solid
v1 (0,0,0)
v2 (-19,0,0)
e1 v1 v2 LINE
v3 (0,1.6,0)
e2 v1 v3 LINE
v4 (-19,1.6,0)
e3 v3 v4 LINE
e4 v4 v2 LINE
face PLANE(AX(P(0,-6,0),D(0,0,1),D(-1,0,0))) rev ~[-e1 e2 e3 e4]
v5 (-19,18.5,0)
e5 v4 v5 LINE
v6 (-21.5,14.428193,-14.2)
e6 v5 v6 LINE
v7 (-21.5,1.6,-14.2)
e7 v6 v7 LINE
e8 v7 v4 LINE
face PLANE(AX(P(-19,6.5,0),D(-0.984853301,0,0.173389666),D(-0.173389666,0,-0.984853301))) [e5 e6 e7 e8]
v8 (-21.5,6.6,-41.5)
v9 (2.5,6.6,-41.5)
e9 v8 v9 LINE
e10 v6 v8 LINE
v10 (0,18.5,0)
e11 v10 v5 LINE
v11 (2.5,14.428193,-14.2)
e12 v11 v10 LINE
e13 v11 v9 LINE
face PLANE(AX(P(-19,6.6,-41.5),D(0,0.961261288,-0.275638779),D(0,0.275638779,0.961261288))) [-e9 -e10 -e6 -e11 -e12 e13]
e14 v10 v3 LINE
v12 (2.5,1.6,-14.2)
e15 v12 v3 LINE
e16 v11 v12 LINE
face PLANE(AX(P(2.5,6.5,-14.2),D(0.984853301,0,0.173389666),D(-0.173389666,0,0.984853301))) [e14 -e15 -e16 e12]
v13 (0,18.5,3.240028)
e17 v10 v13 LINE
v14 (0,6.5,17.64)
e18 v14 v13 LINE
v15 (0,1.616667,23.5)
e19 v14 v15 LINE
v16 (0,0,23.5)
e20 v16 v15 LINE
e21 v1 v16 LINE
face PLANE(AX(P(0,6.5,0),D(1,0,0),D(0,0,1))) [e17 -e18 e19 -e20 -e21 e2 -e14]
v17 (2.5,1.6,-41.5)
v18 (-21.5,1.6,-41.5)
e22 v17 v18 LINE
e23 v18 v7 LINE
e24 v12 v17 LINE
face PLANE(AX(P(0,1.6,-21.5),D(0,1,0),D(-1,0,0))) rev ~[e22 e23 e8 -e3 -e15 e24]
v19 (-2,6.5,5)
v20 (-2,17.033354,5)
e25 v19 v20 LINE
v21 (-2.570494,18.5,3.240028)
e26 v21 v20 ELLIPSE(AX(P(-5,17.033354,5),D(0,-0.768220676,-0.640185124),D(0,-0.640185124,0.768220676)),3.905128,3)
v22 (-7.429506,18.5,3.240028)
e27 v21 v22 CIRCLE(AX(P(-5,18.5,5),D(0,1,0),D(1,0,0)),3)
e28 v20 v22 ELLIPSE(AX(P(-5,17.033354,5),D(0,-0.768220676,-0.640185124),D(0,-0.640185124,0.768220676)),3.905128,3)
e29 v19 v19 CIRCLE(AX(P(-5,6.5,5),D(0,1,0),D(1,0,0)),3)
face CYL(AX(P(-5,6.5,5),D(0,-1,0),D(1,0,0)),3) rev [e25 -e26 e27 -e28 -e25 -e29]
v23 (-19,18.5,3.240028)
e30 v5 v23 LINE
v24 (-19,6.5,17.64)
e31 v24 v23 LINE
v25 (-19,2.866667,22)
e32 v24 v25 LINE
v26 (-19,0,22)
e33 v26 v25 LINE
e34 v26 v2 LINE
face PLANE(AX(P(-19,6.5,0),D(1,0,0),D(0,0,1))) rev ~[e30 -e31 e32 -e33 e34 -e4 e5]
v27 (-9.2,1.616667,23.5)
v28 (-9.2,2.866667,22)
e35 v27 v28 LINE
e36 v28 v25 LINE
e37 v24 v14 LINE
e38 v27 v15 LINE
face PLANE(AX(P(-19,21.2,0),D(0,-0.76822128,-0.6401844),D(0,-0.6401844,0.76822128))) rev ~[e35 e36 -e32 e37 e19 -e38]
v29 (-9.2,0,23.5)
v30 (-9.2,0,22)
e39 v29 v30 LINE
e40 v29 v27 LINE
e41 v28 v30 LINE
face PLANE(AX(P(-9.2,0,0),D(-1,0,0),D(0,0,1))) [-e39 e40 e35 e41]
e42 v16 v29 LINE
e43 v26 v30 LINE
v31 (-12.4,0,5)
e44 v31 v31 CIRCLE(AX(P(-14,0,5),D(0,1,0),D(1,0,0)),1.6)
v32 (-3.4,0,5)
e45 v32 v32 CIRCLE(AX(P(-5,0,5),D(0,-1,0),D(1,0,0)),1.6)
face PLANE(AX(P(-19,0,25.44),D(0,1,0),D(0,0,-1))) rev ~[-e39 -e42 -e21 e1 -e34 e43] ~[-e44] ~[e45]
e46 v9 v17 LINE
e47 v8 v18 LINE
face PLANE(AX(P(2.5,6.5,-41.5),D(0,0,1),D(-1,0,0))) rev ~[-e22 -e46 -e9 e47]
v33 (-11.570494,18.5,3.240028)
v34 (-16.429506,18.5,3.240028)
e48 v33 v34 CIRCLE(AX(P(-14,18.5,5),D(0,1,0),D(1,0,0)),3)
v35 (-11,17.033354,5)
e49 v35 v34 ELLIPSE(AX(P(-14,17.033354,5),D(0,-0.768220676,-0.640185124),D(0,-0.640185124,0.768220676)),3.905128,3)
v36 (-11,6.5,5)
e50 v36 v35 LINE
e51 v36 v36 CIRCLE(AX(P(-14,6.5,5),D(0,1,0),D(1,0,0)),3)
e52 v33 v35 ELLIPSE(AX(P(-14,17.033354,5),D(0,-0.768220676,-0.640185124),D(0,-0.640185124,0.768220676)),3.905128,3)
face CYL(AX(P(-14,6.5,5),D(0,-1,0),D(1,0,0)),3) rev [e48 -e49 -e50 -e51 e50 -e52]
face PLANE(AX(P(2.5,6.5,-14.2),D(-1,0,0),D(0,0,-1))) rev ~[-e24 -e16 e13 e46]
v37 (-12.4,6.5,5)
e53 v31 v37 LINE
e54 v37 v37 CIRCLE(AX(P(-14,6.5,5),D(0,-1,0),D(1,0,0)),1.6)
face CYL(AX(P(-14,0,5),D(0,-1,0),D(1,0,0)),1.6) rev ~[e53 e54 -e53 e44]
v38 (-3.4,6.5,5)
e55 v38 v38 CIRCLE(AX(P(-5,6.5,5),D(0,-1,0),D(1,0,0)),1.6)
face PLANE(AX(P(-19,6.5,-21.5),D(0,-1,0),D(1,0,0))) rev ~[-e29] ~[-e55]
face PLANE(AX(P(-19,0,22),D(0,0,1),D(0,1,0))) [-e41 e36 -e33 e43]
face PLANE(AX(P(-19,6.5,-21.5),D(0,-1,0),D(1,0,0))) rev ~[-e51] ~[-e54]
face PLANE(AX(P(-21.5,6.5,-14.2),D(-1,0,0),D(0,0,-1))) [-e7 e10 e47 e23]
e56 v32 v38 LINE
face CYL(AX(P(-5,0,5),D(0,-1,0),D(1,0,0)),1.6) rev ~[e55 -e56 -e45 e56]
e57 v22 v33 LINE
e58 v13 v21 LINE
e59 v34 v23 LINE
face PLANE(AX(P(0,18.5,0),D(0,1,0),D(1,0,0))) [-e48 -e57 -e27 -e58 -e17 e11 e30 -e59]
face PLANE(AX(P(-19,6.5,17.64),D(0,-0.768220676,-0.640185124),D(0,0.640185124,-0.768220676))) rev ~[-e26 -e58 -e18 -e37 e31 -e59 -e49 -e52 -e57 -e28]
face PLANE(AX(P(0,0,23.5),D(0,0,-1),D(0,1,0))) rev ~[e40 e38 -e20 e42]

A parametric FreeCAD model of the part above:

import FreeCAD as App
import Part
import Sketcher
from FreeCAD import Vector
Q = App.Units.Quantity


def edges_at(feature, points):
    """Names of the edges that pass closest to the given points."""
    edges = feature.Shape.Edges
    near = lambda p: min(range(len(edges)), key=lambda i: edges[i].distToShape(Part.Vertex(*p))[0])
    return sorted({f"Edge{near(p) + 1}" for p in points})


def add_polygon(sketch, points):
    """Adds a closed chain of lines whose ends are joined by coincident constraints."""
    first, n = sketch.GeometryCount, len(points)
    for a, b in zip(points, points[1:] + points[:1]):
        sketch.addGeometry(Part.LineSegment(App.Vector(*a, 0), App.Vector(*b, 0)), False)
    for i in range(n):
        sketch.addConstraint(Sketcher.Constraint("Coincident", first + i, 2, first + (i + 1) % n, 1))

doc = App.newDocument("Part")
params = doc.addObject("Spreadsheet::Sheet", "Params")
for row, (alias, value) in enumerate([
    ("sketch1_diameter", "3.4 mm"),
    ("sketch1_width", "19 mm"),
    ("sketch1_height", "22 mm"),
    ("pad1_length", "17.2 mm"),
    ("sketch2_height", "60 mm"),
    ("sketch2_width", "23.2 mm"),
    ("pad2_length", "19 mm"),
    ("sketch3_height", "38.5 mm"),
    ("sketch3_width", "19 mm"),
    ("pocket1_length", "18.2 mm"),
    ("sketch4_height", "22 mm"),
    ("sketch4_width", "19 mm"),
    ("pocket2_length", "10 mm"),
    ("sketch5_height", "21.5 mm"),
    ("sketch5_width", "6.4 mm"),
    ("pad3_length", "23.2 mm"),
    ("sketch6_width", "6.4 mm"),
    ("sketch6_height", "38.5 mm"),
    ("pad4_length", "5 mm"),
    ("chamfer_size", "12 mm"),
    ("sketch7_diameter", "3.4 mm"),
    ("pocket3_length", "10 mm"),
    ("sketch8_diameter", "6.5 mm"),
    ("sketch8_diameter2", "3.4 mm"),
    ("pocket4_length", "3 mm"),
    ("sketch9_height", "1.5 mm"),
    ("pad5_length", "9.2 mm"),
    ("sketch10_height", "25.44 mm"),
    ("sketch10_width", "17.2 mm"),
    ("pad6_length", "19 mm"),
    ("sketch11_diameter", "3.2 mm"),
    ("pocket5_length", "19 mm"),
    ("sketch12_diameter", "6 mm"),
    ("sketch12_diameter2", "3.2 mm"),
    ("pocket6_length", "19 mm"),
    ("sketch13_diameter", "6.5 mm"),
    ("sketch13_width", "19 mm"),
    ("sketch13_width2", "31.8 mm"),
    ("sketch13_height", "38.5 mm"),
    ("pad7_length", "4 mm"),
    ("sketch14_width", "4 mm"),
    ("pad8_length", "19 mm"),
    ("sketch15_diameter", "6 mm"),
    ("pocket7_length", "19 mm"),
    ("sketch16_height", "1.94 mm"),
    ("sketch16_width", "2.92 mm"),
    ("pocket8_length", "9.2 mm"),
    ("sketch17_height", "3.44 mm"),
    ("pocket9_length", "9.8 mm"),
    ("sketch18_width", "19 mm"),
    ("sketch18_width2", "31.8 mm"),
    ("pocket10_length", "7.6 mm"),
    ("sketch19_width", "19 mm"),
    ("sketch19_width2", "31.8 mm"),
    ("sketch19_height", "38.5 mm"),
    ("sketch19_height2", "21.5 mm"),
    ("pocket11_length", "40 mm"),
    ("pocket12_length", "14.7 mm"),
    ("sketch21_width", "19 mm"),
    ("sketch21_height", "4.9 mm"),
    ("pad9_length", "20 mm"),
    ("sketch22_width", "2.5 mm"),
    ("sketch22_height", "41.5 mm"),
    ("pad10_length", "4.9 mm"),
    ("sketch23_height", "14.2 mm"),
    ("sketch23_width", "2.5 mm"),
    ("pocket13_length", "10 mm"),
    ("sketch24_diameter", "6 mm"),
    ("sketch24_width", "19 mm"),
    ("sketch24_width2", "24 mm"),
    ("sketch24_height", "27.3 mm"),
    ("sketch24_height2", "17.64 mm"),
    ("pad11_length", "12 mm"),
    ("pocket14_length", "50 mm"),
    ("sketch26_width", "11.9 mm"),
    ("pocket15_length", "50 mm"),
], start=1):
    params.set(f"A{row}", alias)
    params.set(f"B{row}", "=" + value)
    params.setAlias(f"B{row}", alias)

body = doc.addObject("PartDesign::Body", "Body")

# Sketch on XZ plane
sketch1 = body.newObject("Sketcher::SketchObject", "Sketch")
sketch1.AttachmentSupport = (doc.getObject("XZ_Plane"), [""])
sketch1.MapMode = "FlatFace"
add_polygon(sketch1, [(0, 0), (-19, 0), (-19, 22), (0, 22)])  # lines 0-3
sketch1.addGeometry(Part.Circle(Vector(-5, 5, 0), Vector(0, 0, 1), 1.7), False)  # 4
sketch1.addGeometry(Part.Circle(Vector(-14, 5, 0), Vector(0, 0, 1), 1.7), False)  # 5
sketch1.addConstraint(Sketcher.Constraint("Horizontal", 0))
sketch1.addConstraint(Sketcher.Constraint("Vertical", 1))
sketch1.addConstraint(Sketcher.Constraint("Horizontal", 2))
sketch1.addConstraint(Sketcher.Constraint("Vertical", 3))
sketch1.addConstraint(Sketcher.Constraint("Coincident", 3, 2, -1, 1))
sketch1.addConstraint(Sketcher.Constraint("Equal", 4, 5))
sketch1.addConstraint(Sketcher.Constraint("Horizontal", 4, 3, 5, 3))
sketch1.addConstraint(Sketcher.Constraint("Diameter", 4, 3.4))
sketch1.addConstraint(Sketcher.Constraint("DistanceX", 0, 2, 0, 1, 19.0))
sketch1.addConstraint(Sketcher.Constraint("DistanceY", 1, 1, 1, 2, 22.0))
sketch1.addConstraint(Sketcher.Constraint("DistanceX", 4, 3, -1, 1, 5.0))
sketch1.addConstraint(Sketcher.Constraint("DistanceY", -1, 1, 4, 3, 5.0))
sketch1.addConstraint(Sketcher.Constraint("DistanceX", 0, 2, 5, 3, 5.0))
sketch1.setExpression("Constraints[11]", "Params.sketch1_diameter")
sketch1.setExpression("Constraints[12]", "Params.sketch1_width")
sketch1.setExpression("Constraints[13]", "Params.sketch1_height")
pad1 = body.newObject("PartDesign::Pad", "Pad")
pad1.Profile = sketch1
pad1.setExpression("Length", "Params.pad1_length")
pad1.Reversed = True

# Sketch on YZ plane
sketch2 = body.newObject("Sketcher::SketchObject", "Sketch001")
sketch2.AttachmentSupport = (doc.getObject("YZ_Plane"), [""])
sketch2.MapMode = "FlatFace"
add_polygon(sketch2, [(17, 0), (-6, 0), (-6, -60), (17, -60)])  # lines 0-3
sketch2.addConstraint(Sketcher.Constraint("Horizontal", 0))
sketch2.addConstraint(Sketcher.Constraint("Vertical", 1))
sketch2.addConstraint(Sketcher.Constraint("Horizontal", 2))
sketch2.addConstraint(Sketcher.Constraint("Vertical", 3))
sketch2.addConstraint(Sketcher.Constraint("PointOnObject", 0, 2, -1))
sketch2.addConstraint(Sketcher.Constraint("DistanceY", 1, 2, 1, 1, 60.0))
sketch2.addConstraint(Sketcher.Constraint("DistanceX", 0, 2, 0, 1, 23.2))
sketch2.addConstraint(Sketcher.Constraint("DistanceX", 0, 2, -1, 1, 6.0))
sketch2.setExpression("Constraints[9]", "Params.sketch2_height")
sketch2.setExpression("Constraints[10]", "Params.sketch2_width")
pad2 = body.newObject("PartDesign::Pad", "Pad001")
pad2.Profile = sketch2
pad2.setExpression("Length", "Params.pad2_length")
pad2.Reversed = True

# Sketch on XZ plane
sketch3 = body.newObject("Sketcher::SketchObject", "Sketch002")
sketch3.AttachmentSupport = (doc.getObject("XZ_Plane"), [""])
sketch3.MapMode = "FlatFace"
sketch3.AttachmentOffset = App.Placement(Vector(0, 0, 6), App.Rotation())
add_polygon(sketch3, [(0, -60), (0, -22), (-19, -22), (-19, -60)])  # lines 0-3
sketch3.addConstraint(Sketcher.Constraint("Vertical", 0))
sketch3.addConstraint(Sketcher.Constraint("Horizontal", 1))
sketch3.addConstraint(Sketcher.Constraint("Vertical", 2))
sketch3.addConstraint(Sketcher.Constraint("Horizontal", 3))
sketch3.addConstraint(Sketcher.Constraint("PointOnObject", 0, 2, -2))
sketch3.addConstraint(Sketcher.Constraint("DistanceY", 0, 1, 0, 2, 38.5))
sketch3.addConstraint(Sketcher.Constraint("DistanceX", 1, 2, 1, 1, 19.0))
sketch3.addConstraint(Sketcher.Constraint("DistanceY", 2, 2, -1, 1, 60.0))
sketch3.setExpression("Constraints[9]", "Params.sketch3_height")
sketch3.setExpression("Constraints[10]", "Params.sketch3_width")
pocket1 = body.newObject("PartDesign::Pocket", "Pocket")
pocket1.Profile = sketch3
pocket1.setExpression("Length", "Params.pocket1_length")

# Sketch on XZ plane
sketch4 = body.newObject("Sketcher::SketchObject", "Sketch003")
sketch4.AttachmentSupport = (doc.getObject("XZ_Plane"), [""])
sketch4.MapMode = "FlatFace"
sketch4.AttachmentOffset = App.Placement(Vector(0, 0, -17.2), App.Rotation())
add_polygon(sketch4, [(-19, 22), (0, 22), (0, 0), (-19, 0)])  # lines 0-3
sketch4.addConstraint(Sketcher.Constraint("Horizontal", 0))
sketch4.addConstraint(Sketcher.Constraint("Vertical", 1))
sketch4.addConstraint(Sketcher.Constraint("Horizontal", 2))
sketch4.addConstraint(Sketcher.Constraint("Vertical", 3))
sketch4.addConstraint(Sketcher.Constraint("Coincident", 1, 2, -1, 1))
sketch4.addConstraint(Sketcher.Constraint("DistanceY", 1, 2, 1, 1, 22.0))
sketch4.addConstraint(Sketcher.Constraint("DistanceX", 0, 1, 0, 2, 19.0))
sketch4.setExpression("Constraints[9]", "Params.sketch4_height")
sketch4.setExpression("Constraints[10]", "Params.sketch4_width")
pocket2 = body.newObject("PartDesign::Pocket", "Pocket001")
pocket2.Profile = sketch4
pocket2.setExpression("Length", "Params.pocket2_length")
pocket2.Reversed = True

# Sketch on XZ plane
sketch5 = body.newObject("Sketcher::SketchObject", "Sketch004")
sketch5.AttachmentSupport = (doc.getObject("XZ_Plane"), [""])
sketch5.MapMode = "FlatFace"
sketch5.AttachmentOffset = App.Placement(Vector(0, 0, -17.2), App.Rotation())
add_polygon(sketch5, [(0, -22), (0, 0), (6, -22)])  # lines 0-2
add_polygon(sketch5, [(-25, -22), (-19, 0), (-19, -22)])  # lines 3-5
sketch5.addConstraint(Sketcher.Constraint("Vertical", 0))
sketch5.addConstraint(Sketcher.Constraint("Horizontal", 2))
sketch5.addConstraint(Sketcher.Constraint("Vertical", 4))
sketch5.addConstraint(Sketcher.Constraint("Horizontal", 5))
sketch5.addConstraint(Sketcher.Constraint("Coincident", 0, 2, -1, 1))
sketch5.addConstraint(Sketcher.Constraint("PointOnObject", 3, 2, -1))
sketch5.addConstraint(Sketcher.Constraint("Horizontal", 2, 2, 4, 2))
sketch5.addConstraint(Sketcher.Constraint("Equal", 2, 5))
sketch5.addConstraint(Sketcher.Constraint("DistanceY", 0, 1, 0, 2, 21.5))
sketch5.addConstraint(Sketcher.Constraint("DistanceX", 2, 2, 2, 1, 6.4))
sketch5.addConstraint(Sketcher.Constraint("DistanceX", 3, 2, -1, 1, 19.0))
sketch5.setExpression("Constraints[14]", "Params.sketch5_height")
sketch5.setExpression("Constraints[15]", "Params.sketch5_width")
pad3 = body.newObject("PartDesign::Pad", "Pad002")
pad3.Profile = sketch5
pad3.setExpression("Length", "Params.pad3_length")

# Sketch on XZ plane
sketch6 = body.newObject("Sketcher::SketchObject", "Sketch005")
sketch6.AttachmentSupport = (doc.getObject("XZ_Plane"), [""])
sketch6.MapMode = "FlatFace"
sketch6.AttachmentOffset = App.Placement(Vector(0, 0, -17.2), App.Rotation())
add_polygon(sketch6, [(0, -60), (0, -22), (6, -22), (6, -60)])  # lines 0-3
add_polygon(sketch6, [(-19, -22), (-19, -60), (-25, -60), (-25, -22)])  # lines 4-7
sketch6.addConstraint(Sketcher.Constraint("Vertical", 0))
sketch6.addConstraint(Sketcher.Constraint("Horizontal", 1))
sketch6.addConstraint(Sketcher.Constraint("Vertical", 2))
sketch6.addConstraint(Sketcher.Constraint("Horizontal", 3))
sketch6.addConstraint(Sketcher.Constraint("Vertical", 4))
sketch6.addConstraint(Sketcher.Constraint("Horizontal", 5))
sketch6.addConstraint(Sketcher.Constraint("Vertical", 6))
sketch6.addConstraint(Sketcher.Constraint("Horizontal", 7))
sketch6.addConstraint(Sketcher.Constraint("PointOnObject", 0, 2, -2))
sketch6.addConstraint(Sketcher.Constraint("Horizontal", 3, 2, 4, 2))
sketch6.addConstraint(Sketcher.Constraint("Horizontal", 1, 2, 6, 2))
sketch6.addConstraint(Sketcher.Constraint("Equal", 3, 5))
sketch6.addConstraint(Sketcher.Constraint("DistanceX", 1, 1, 1, 2, 6.4))
sketch6.addConstraint(Sketcher.Constraint("DistanceY", 0, 1, 0, 2, 38.5))
sketch6.addConstraint(Sketcher.Constraint("DistanceY", 2, 2, -1, 1, 60.0))
sketch6.addConstraint(Sketcher.Constraint("DistanceX", 4, 2, -1, 1, 19.0))
sketch6.setExpression("Constraints[20]", "Params.sketch6_width")
sketch6.setExpression("Constraints[21]", "Params.sketch6_height")
pad4 = body.newObject("PartDesign::Pad", "Pad003")
pad4.Profile = sketch6
pad4.setExpression("Length", "Params.pad4_length")
doc.recompute()

chamfer = body.newObject("PartDesign::Chamfer", "Chamfer")
chamfer.Base = (pad4, edges_at(pad4, [(-9.5, 7.2, 22)]))
chamfer.ChamferType = "Distance and Angle"
chamfer.setExpression("Size", "Params.chamfer_size")
chamfer.Angle = 25
chamfer.FlipDirection = True

# Sketch on XZ plane
sketch7 = body.newObject("Sketcher::SketchObject", "Sketch006")
sketch7.AttachmentSupport = (doc.getObject("XZ_Plane"), [""])
sketch7.MapMode = "FlatFace"
sketch7.AttachmentOffset = App.Placement(Vector(0, 0, -12.2), App.Rotation())
sketch7.addGeometry(Part.Circle(Vector(-9.5, -34, 0), Vector(0, 0, 1), 1.7), False)
sketch7.addGeometry(Part.Circle(Vector(0.5, -44, 0), Vector(0, 0, 1), 1.7), False)
sketch7.addGeometry(Part.Circle(Vector(-9.5, -54, 0), Vector(0, 0, 1), 1.7), False)
sketch7.addGeometry(Part.Circle(Vector(-19.5, -44, 0), Vector(0, 0, 1), 1.7), False)
sketch7.addConstraint(Sketcher.Constraint("Equal", 0, 1))
sketch7.addConstraint(Sketcher.Constraint("Equal", 1, 2))
sketch7.addConstraint(Sketcher.Constraint("Equal", 2, 3))
sketch7.addConstraint(Sketcher.Constraint("Horizontal", 1, 3, 3, 3))
sketch7.addConstraint(Sketcher.Constraint("Vertical", 0, 3, 2, 3))
sketch7.addConstraint(Sketcher.Constraint("Diameter", 0, 3.4))
sketch7.addConstraint(Sketcher.Constraint("DistanceX", 0, 3, 1, 3, 10.0))
sketch7.addConstraint(Sketcher.Constraint("DistanceY", 1, 3, 0, 3, 10.0))
sketch7.addConstraint(Sketcher.Constraint("DistanceY", 2, 3, 1, 3, 10.0))
sketch7.addConstraint(Sketcher.Constraint("DistanceX", 3, 3, 0, 3, 10.0))
sketch7.addConstraint(Sketcher.Constraint("DistanceY", 0, 3, -1, 1, 34.0))
sketch7.addConstraint(Sketcher.Constraint("DistanceX", 0, 3, -1, 1, 9.5))
sketch7.setExpression("Constraints[5]", "Params.sketch7_diameter")
pocket3 = body.newObject("PartDesign::Pocket", "Pocket002")
pocket3.Profile = sketch7
pocket3.setExpression("Length", "Params.pocket3_length")

# Sketch on XZ plane
sketch8 = body.newObject("Sketcher::SketchObject", "Sketch007")
sketch8.AttachmentSupport = (doc.getObject("XZ_Plane"), [""])
sketch8.MapMode = "FlatFace"
sketch8.AttachmentOffset = App.Placement(Vector(0, 0, -17.2), App.Rotation())
sketch8.addGeometry(Part.Circle(Vector(0.5, -44, 0), Vector(0, 0, 1), 3.2), False)
sketch8.addGeometry(Part.Circle(Vector(0.5, -44, 0), Vector(0, 0, 1), 1.7), False)
sketch8.addGeometry(Part.Circle(Vector(-9.5, -54, 0), Vector(0, 0, 1), 3.2), False)
sketch8.addGeometry(Part.Circle(Vector(-19.5, -44, 0), Vector(0, 0, 1), 3.2), False)
sketch8.addGeometry(Part.Circle(Vector(-9.5, -34, 0), Vector(0, 0, 1), 3.2), False)
sketch8.addConstraint(Sketcher.Constraint("Coincident", 1, 3, 0, 3))
sketch8.addConstraint(Sketcher.Constraint("Equal", 0, 2))
sketch8.addConstraint(Sketcher.Constraint("Equal", 2, 3))
sketch8.addConstraint(Sketcher.Constraint("Equal", 3, 4))
sketch8.addConstraint(Sketcher.Constraint("Horizontal", 1, 3, 3, 3))
sketch8.addConstraint(Sketcher.Constraint("Vertical", 2, 3, 4, 3))
sketch8.addConstraint(Sketcher.Constraint("Diameter", 0, 6.5))
sketch8.addConstraint(Sketcher.Constraint("Diameter", 1, 3.4))
sketch8.addConstraint(Sketcher.Constraint("DistanceY", 0, 3, -1, 1, 44.0))
sketch8.addConstraint(Sketcher.Constraint("DistanceY", 2, 3, -1, 1, 54.0))
sketch8.addConstraint(Sketcher.Constraint("DistanceY", 4, 3, -1, 1, 34.0))
sketch8.addConstraint(Sketcher.Constraint("DistanceX", 2, 3, 0, 3, 10.0))
sketch8.addConstraint(Sketcher.Constraint("DistanceX", 3, 3, 2, 3, 10.0))
sketch8.addConstraint(Sketcher.Constraint("DistanceX", -1, 1, 0, 3, 0.5))
sketch8.setExpression("Constraints[6]", "Params.sketch8_diameter")
sketch8.setExpression("Constraints[7]", "Params.sketch8_diameter2")
pocket4 = body.newObject("PartDesign::Pocket", "Pocket003")
pocket4.Profile = sketch8
pocket4.setExpression("Length", "Params.pocket4_length")
pocket4.Reversed = True

# Sketch on YZ plane
sketch9 = body.newObject("Sketcher::SketchObject", "Sketch008")
sketch9.AttachmentSupport = (doc.getObject("YZ_Plane"), [""])
sketch9.MapMode = "FlatFace"
sketch9.AttachmentOffset = App.Placement(Vector(0, 0, -19), App.Rotation())
add_polygon(sketch9, [(0.9, 23.5), (1.6, 22), (0, 22), (0, 23.5)])  # lines 0-3
sketch9.addConstraint(Sketcher.Constraint("Horizontal", 1))
sketch9.addConstraint(Sketcher.Constraint("Vertical", 2))
sketch9.addConstraint(Sketcher.Constraint("Horizontal", 3))
sketch9.addConstraint(Sketcher.Constraint("PointOnObject", 1, 2, -2))
sketch9.addConstraint(Sketcher.Constraint("DistanceY", 2, 1, 2, 2, 1.5))
sketch9.addConstraint(Sketcher.Constraint("Angle", 0, Q("-65 deg")))
sketch9.addConstraint(Sketcher.Constraint("DistanceY", -1, 1, 0, 2, 22.0))
sketch9.addConstraint(Sketcher.Constraint("DistanceX", 1, 2, 1, 1, 1.6043))
sketch9.setExpression("Constraints[8]", "Params.sketch9_height")
pad5 = body.newObject("PartDesign::Pad", "Pad004")
pad5.Profile = sketch9
pad5.setExpression("Length", "Params.pad5_length")

# Sketch on YZ plane
sketch10 = body.newObject("Sketcher::SketchObject", "Sketch009")
sketch10.AttachmentSupport = (doc.getObject("YZ_Plane"), [""])
sketch10.MapMode = "FlatFace"
sketch10.AttachmentOffset = App.Placement(Vector(0, 0, -19), App.Rotation())
add_polygon(sketch10, [(0, 25), (17, 0), (0, 0)])  # lines 0-2
sketch10.addConstraint(Sketcher.Constraint("Horizontal", 1))
sketch10.addConstraint(Sketcher.Constraint("Vertical", 2))
sketch10.addConstraint(Sketcher.Constraint("Coincident", 1, 2, -1, 1))
sketch10.addConstraint(Sketcher.Constraint("DistanceY", 2, 1, 2, 2, 25.44))
sketch10.addConstraint(Sketcher.Constraint("DistanceX", 1, 2, 1, 1, 17.2))
sketch10.setExpression("Constraints[6]", "Params.sketch10_height")
sketch10.setExpression("Constraints[7]", "Params.sketch10_width")
pad6 = body.newObject("PartDesign::Pad", "Pad005")
pad6.Profile = sketch10
pad6.setExpression("Length", "Params.pad6_length")

# Sketch on XZ plane
sketch11 = body.newObject("Sketcher::SketchObject", "Sketch010")
sketch11.AttachmentSupport = (doc.getObject("XZ_Plane"), [""])
sketch11.MapMode = "FlatFace"
sketch11.addGeometry(Part.Circle(Vector(-5, 5, 0), Vector(0, 0, 1), 1.6), False)
sketch11.addGeometry(Part.Circle(Vector(-14, 5, 0), Vector(0, 0, 1), 1.6), False)
sketch11.addConstraint(Sketcher.Constraint("Equal", 0, 1))
sketch11.addConstraint(Sketcher.Constraint("Horizontal", 0, 3, 1, 3))
sketch11.addConstraint(Sketcher.Constraint("Diameter", 0, 3.2))
sketch11.addConstraint(Sketcher.Constraint("DistanceX", 0, 3, -1, 1, 5.0))
sketch11.addConstraint(Sketcher.Constraint("DistanceY", -1, 1, 0, 3, 5.0))
sketch11.addConstraint(Sketcher.Constraint("DistanceX", 1, 3, -1, 1, 14.0))
sketch11.setExpression("Constraints[2]", "Params.sketch11_diameter")
pocket5 = body.newObject("PartDesign::Pocket", "Pocket004")
pocket5.Profile = sketch11
pocket5.setExpression("Length", "Params.pocket5_length")

# Sketch on XZ plane
sketch12 = body.newObject("Sketcher::SketchObject", "Sketch011")
sketch12.AttachmentSupport = (doc.getObject("XZ_Plane"), [""])
sketch12.MapMode = "FlatFace"
sketch12.AttachmentOffset = App.Placement(Vector(0, 0, -6.5), App.Rotation())
sketch12.addGeometry(Part.Circle(Vector(-14, 5, 0), Vector(0, 0, 1), 3), False)
sketch12.addGeometry(Part.Circle(Vector(-14, 5, 0), Vector(0, 0, 1), 1.6), False)
sketch12.addGeometry(Part.Circle(Vector(-5, 5, 0), Vector(0, 0, 1), 3), False)
sketch12.addGeometry(Part.Circle(Vector(-5, 5, 0), Vector(0, 0, 1), 1.6), False)
sketch12.addConstraint(Sketcher.Constraint("Coincident", 1, 3, 0, 3))
sketch12.addConstraint(Sketcher.Constraint("Coincident", 3, 3, 2, 3))
sketch12.addConstraint(Sketcher.Constraint("Equal", 0, 2))
sketch12.addConstraint(Sketcher.Constraint("Equal", 1, 3))
sketch12.addConstraint(Sketcher.Constraint("Horizontal", 1, 3, 2, 3))
sketch12.addConstraint(Sketcher.Constraint("Diameter", 0, 6.0))
sketch12.addConstraint(Sketcher.Constraint("Diameter", 1, 3.2))
sketch12.addConstraint(Sketcher.Constraint("DistanceX", 0, 3, -1, 1, 14.0))
sketch12.addConstraint(Sketcher.Constraint("DistanceY", -1, 1, 0, 3, 5.0))
sketch12.addConstraint(Sketcher.Constraint("DistanceX", 2, 3, -1, 1, 5.0))
sketch12.setExpression("Constraints[5]", "Params.sketch12_diameter")
sketch12.setExpression("Constraints[6]", "Params.sketch12_diameter2")
pocket6 = body.newObject("PartDesign::Pocket", "Pocket005")
pocket6.Profile = sketch12
pocket6.setExpression("Length", "Params.pocket6_length")

# Sketch on XZ plane
sketch13 = body.newObject("Sketcher::SketchObject", "Sketch012")
sketch13.AttachmentSupport = (doc.getObject("XZ_Plane"), [""])
sketch13.MapMode = "FlatFace"
sketch13.AttachmentOffset = App.Placement(Vector(0, 0, -17.2), App.Rotation())
add_polygon(sketch13, [(6.4, -21.5), (6.4, -60), (-25.4, -60), (-25.4, -21.5), (-19, 0), (0, 0)])  # lines 0-5
sketch13.addGeometry(Part.Circle(Vector(-19.5, -44, 0), Vector(0, 0, 1), 3.2), False)  # 6
sketch13.addGeometry(Part.Circle(Vector(-9.5, -34, 0), Vector(0, 0, 1), 3.2), False)  # 7
sketch13.addGeometry(Part.Circle(Vector(-9.5, -54, 0), Vector(0, 0, 1), 3.2), False)  # 8
sketch13.addGeometry(Part.Circle(Vector(0.5, -44, 0), Vector(0, 0, 1), 3.2), False)  # 9
sketch13.addConstraint(Sketcher.Constraint("Vertical", 0))
sketch13.addConstraint(Sketcher.Constraint("Horizontal", 1))
sketch13.addConstraint(Sketcher.Constraint("Vertical", 2))
sketch13.addConstraint(Sketcher.Constraint("Horizontal", 4))
sketch13.addConstraint(Sketcher.Constraint("Coincident", 4, 2, -1, 1))
sketch13.addConstraint(Sketcher.Constraint("Equal", 6, 7))
sketch13.addConstraint(Sketcher.Constraint("Equal", 7, 8))
sketch13.addConstraint(Sketcher.Constraint("Equal", 8, 9))
sketch13.addConstraint(Sketcher.Constraint("Horizontal", 6, 3, 9, 3))
sketch13.addConstraint(Sketcher.Constraint("Horizontal", 2, 2, 5, 2))
sketch13.addConstraint(Sketcher.Constraint("Vertical", 7, 3, 8, 3))
sketch13.addConstraint(Sketcher.Constraint("Equal", 3, 5))
sketch13.addConstraint(Sketcher.Constraint("Diameter", 6, 6.5))
sketch13.addConstraint(Sketcher.Constraint("DistanceX", 4, 1, 4, 2, 19.0))
sketch13.addConstraint(Sketcher.Constraint("DistanceX", 1, 2, 1, 1, 31.8))
sketch13.addConstraint(Sketcher.Constraint("DistanceY", 0, 2, 0, 1, 38.5))
sketch13.addConstraint(Sketcher.Constraint("DistanceY", 6, 3, -1, 1, 44.0))
sketch13.addConstraint(Sketcher.Constraint("DistanceY", 7, 3, -1, 1, 34.0))
sketch13.addConstraint(Sketcher.Constraint("DistanceY", 8, 3, -1, 1, 54.0))
sketch13.addConstraint(Sketcher.Constraint("DistanceY", 0, 2, -1, 1, 60.0))
sketch13.addConstraint(Sketcher.Constraint("DistanceX", 6, 3, 7, 3, 10.0))
sketch13.addConstraint(Sketcher.Constraint("DistanceX", 7, 3, 9, 3, 10.0))
sketch13.addConstraint(Sketcher.Constraint("DistanceX", 6, 3, -1, 1, 19.5))
sketch13.setExpression("Constraints[18]", "Params.sketch13_diameter")
sketch13.setExpression("Constraints[19]", "Params.sketch13_width")
sketch13.setExpression("Constraints[20]", "Params.sketch13_width2")
sketch13.setExpression("Constraints[21]", "Params.sketch13_height")
pad7 = body.newObject("PartDesign::Pad", "Pad006")
pad7.Profile = sketch13
pad7.setExpression("Length", "Params.pad7_length")
pad7.Reversed = True

# Sketch on YZ plane
sketch14 = body.newObject("Sketcher::SketchObject", "Sketch013")
sketch14.AttachmentSupport = (doc.getObject("YZ_Plane"), [""])
sketch14.MapMode = "FlatFace"
sketch14.AttachmentOffset = App.Placement(Vector(0, 0, -19), App.Rotation())
add_polygon(sketch14, [(0, 25.4), (21.2, 0), (17.2, 0)])  # lines 0-2
sketch14.addConstraint(Sketcher.Constraint("Horizontal", 1))
sketch14.addConstraint(Sketcher.Constraint("PointOnObject", 0, 2, -1))
sketch14.addConstraint(Sketcher.Constraint("PointOnObject", 2, 2, -2))
sketch14.addConstraint(Sketcher.Constraint("DistanceX", 1, 2, 1, 1, 4.0))
sketch14.addConstraint(Sketcher.Constraint("DistanceX", -1, 1, 0, 2, 21.2))
sketch14.addConstraint(Sketcher.Constraint("DistanceY", -1, 1, 2, 2, 25.44))
sketch14.setExpression("Constraints[6]", "Params.sketch14_width")
pad8 = body.newObject("PartDesign::Pad", "Pad007")
pad8.Profile = sketch14
pad8.setExpression("Length", "Params.pad8_length")

# Sketch on XZ plane
sketch15 = body.newObject("Sketcher::SketchObject", "Sketch014")
sketch15.AttachmentSupport = (doc.getObject("XZ_Plane"), [""])
sketch15.MapMode = "FlatFace"
sketch15.AttachmentOffset = App.Placement(Vector(0, 0, -6.5), App.Rotation())
sketch15.addGeometry(Part.Circle(Vector(-14, 5, 0), Vector(0, 0, 1), 3), False)
sketch15.addGeometry(Part.Circle(Vector(-5, 5, 0), Vector(0, 0, 1), 3), False)
sketch15.addConstraint(Sketcher.Constraint("Equal", 0, 1))
sketch15.addConstraint(Sketcher.Constraint("Horizontal", 0, 3, 1, 3))
sketch15.addConstraint(Sketcher.Constraint("Diameter", 0, 6.0))
sketch15.addConstraint(Sketcher.Constraint("DistanceX", 0, 3, -1, 1, 14.0))
sketch15.addConstraint(Sketcher.Constraint("DistanceY", -1, 1, 0, 3, 5.0))
sketch15.addConstraint(Sketcher.Constraint("DistanceX", 1, 3, -1, 1, 5.0))
sketch15.setExpression("Constraints[2]", "Params.sketch15_diameter")
pocket7 = body.newObject("PartDesign::Pocket", "Pocket006")
pocket7.Profile = sketch15
pocket7.setExpression("Length", "Params.pocket7_length")

# Sketch on YZ plane
sketch16 = body.newObject("Sketcher::SketchObject", "Sketch015")
sketch16.AttachmentSupport = (doc.getObject("YZ_Plane"), [""])
sketch16.MapMode = "FlatFace"
add_polygon(sketch16, [(0, 25.4), (0, 23.5), (2.9, 23.5), (2.9, 25.4)])  # lines 0-3
sketch16.addConstraint(Sketcher.Constraint("Vertical", 0))
sketch16.addConstraint(Sketcher.Constraint("Horizontal", 1))
sketch16.addConstraint(Sketcher.Constraint("Vertical", 2))
sketch16.addConstraint(Sketcher.Constraint("Horizontal", 3))
sketch16.addConstraint(Sketcher.Constraint("PointOnObject", 0, 2, -2))
sketch16.addConstraint(Sketcher.Constraint("DistanceY", 0, 2, 0, 1, 1.94))
sketch16.addConstraint(Sketcher.Constraint("DistanceX", 1, 1, 1, 2, 2.92))
sketch16.addConstraint(Sketcher.Constraint("DistanceY", -1, 1, 0, 2, 23.5))
sketch16.setExpression("Constraints[9]", "Params.sketch16_height")
sketch16.setExpression("Constraints[10]", "Params.sketch16_width")
pocket8 = body.newObject("PartDesign::Pocket", "Pocket007")
pocket8.Profile = sketch16
pocket8.setExpression("Length", "Params.pocket8_length")

# Sketch on YZ plane
sketch17 = body.newObject("Sketcher::SketchObject", "Sketch016")
sketch17.AttachmentSupport = (doc.getObject("YZ_Plane"), [""])
sketch17.MapMode = "FlatFace"
sketch17.AttachmentOffset = App.Placement(Vector(0, 0, -19), App.Rotation())
add_polygon(sketch17, [(0, 22), (0, 25.4), (4.8, 25.4), (4.8, 22)])  # lines 0-3
sketch17.addConstraint(Sketcher.Constraint("Vertical", 0))
sketch17.addConstraint(Sketcher.Constraint("Horizontal", 1))
sketch17.addConstraint(Sketcher.Constraint("Vertical", 2))
sketch17.addConstraint(Sketcher.Constraint("Horizontal", 3))
sketch17.addConstraint(Sketcher.Constraint("PointOnObject", 0, 2, -2))
sketch17.addConstraint(Sketcher.Constraint("DistanceY", 0, 1, 0, 2, 3.44))
sketch17.addConstraint(Sketcher.Constraint("DistanceY", -1, 1, 2, 2, 22.0))
sketch17.addConstraint(Sketcher.Constraint("DistanceX", 1, 1, 1, 2, 4.8404))
sketch17.setExpression("Constraints[9]", "Params.sketch17_height")
pocket9 = body.newObject("PartDesign::Pocket", "Pocket008")
pocket9.Profile = sketch17
pocket9.setExpression("Length", "Params.pocket9_length")
pocket9.Reversed = True

# Sketch on XZ plane
sketch18 = body.newObject("Sketcher::SketchObject", "Sketch017")
sketch18.AttachmentSupport = (doc.getObject("XZ_Plane"), [""])
sketch18.MapMode = "FlatFace"
sketch18.AttachmentOffset = App.Placement(Vector(0, 0, 6), App.Rotation())
add_polygon(sketch18, [(-19, 0), (-25, -22), (6, -22), (0, 0)])  # lines 0-3
sketch18.addConstraint(Sketcher.Constraint("Horizontal", 1))
sketch18.addConstraint(Sketcher.Constraint("Horizontal", 3))
sketch18.addConstraint(Sketcher.Constraint("Coincident", 2, 2, -1, 1))
sketch18.addConstraint(Sketcher.Constraint("Equal", 0, 2))
sketch18.addConstraint(Sketcher.Constraint("DistanceX", 3, 2, 3, 1, 19.0))
sketch18.addConstraint(Sketcher.Constraint("DistanceX", 1, 1, 1, 2, 31.8))
sketch18.addConstraint(Sketcher.Constraint("DistanceY", 0, 2, -1, 1, 21.5))
sketch18.setExpression("Constraints[8]", "Params.sketch18_width")
sketch18.setExpression("Constraints[9]", "Params.sketch18_width2")
pocket10 = body.newObject("PartDesign::Pocket", "Pocket009")
pocket10.Profile = sketch18
pocket10.setExpression("Length", "Params.pocket10_length")

# Sketch on XZ plane
sketch19 = body.newObject("Sketcher::SketchObject", "Sketch018")
sketch19.AttachmentSupport = (doc.getObject("XZ_Plane"), [""])
sketch19.MapMode = "FlatFace"
sketch19.AttachmentOffset = App.Placement(Vector(0, 0, -1.6), App.Rotation())
add_polygon(sketch19, [(-19, 0), (-25, -22), (-25, -60), (6, -60), (6, -22), (0, 0), (0, -22), (-19, -22)])  # lines 0-7
sketch19.addConstraint(Sketcher.Constraint("Vertical", 1))
sketch19.addConstraint(Sketcher.Constraint("Horizontal", 2))
sketch19.addConstraint(Sketcher.Constraint("Vertical", 3))
sketch19.addConstraint(Sketcher.Constraint("Vertical", 5))
sketch19.addConstraint(Sketcher.Constraint("Horizontal", 6))
sketch19.addConstraint(Sketcher.Constraint("Vertical", 7))
sketch19.addConstraint(Sketcher.Constraint("Coincident", 4, 2, -1, 1))
sketch19.addConstraint(Sketcher.Constraint("PointOnObject", 7, 2, -1))
sketch19.addConstraint(Sketcher.Constraint("Horizontal", 0, 2, 3, 2))
sketch19.addConstraint(Sketcher.Constraint("Horizontal", 3, 2, 5, 2))
sketch19.addConstraint(Sketcher.Constraint("Equal", 0, 4))
sketch19.addConstraint(Sketcher.Constraint("DistanceX", 6, 2, 6, 1, 19.0))
sketch19.addConstraint(Sketcher.Constraint("DistanceX", 2, 1, 2, 2, 31.8))
sketch19.addConstraint(Sketcher.Constraint("DistanceY", 1, 2, 1, 1, 38.5))
sketch19.addConstraint(Sketcher.Constraint("DistanceY", 5, 2, 5, 1, 21.5))
sketch19.setExpression("Constraints[19]", "Params.sketch19_width")
sketch19.setExpression("Constraints[20]", "Params.sketch19_width2")
sketch19.setExpression("Constraints[21]", "Params.sketch19_height")
sketch19.setExpression("Constraints[22]", "Params.sketch19_height2")
pocket11 = body.newObject("PartDesign::Pocket", "Pocket010")
pocket11.Profile = sketch19
pocket11.setExpression("Length", "Params.pocket11_length")

# Sketch on XZ plane
sketch20 = body.newObject("Sketcher::SketchObject", "Sketch019")
sketch20.AttachmentSupport = (doc.getObject("XZ_Plane"), [""])
sketch20.MapMode = "FlatFace"
sketch20.AttachmentOffset = App.Placement(Vector(0, 0, -21.2), App.Rotation())
add_polygon(sketch20, [(9, 40), (9, -32), (-27, -32), (-27, 40)])  # lines 0-3
sketch20.addConstraint(Sketcher.Constraint("Vertical", 0))
sketch20.addConstraint(Sketcher.Constraint("Horizontal", 1))
sketch20.addConstraint(Sketcher.Constraint("Vertical", 2))
sketch20.addConstraint(Sketcher.Constraint("Horizontal", 3))
sketch20.addConstraint(Sketcher.Constraint("DistanceX", 1, 2, 1, 1, 35.421))
sketch20.addConstraint(Sketcher.Constraint("DistanceY", 0, 2, 0, 1, 72.7894))
sketch20.addConstraint(Sketcher.Constraint("DistanceX", -1, 1, 0, 2, 8.5307))
sketch20.addConstraint(Sketcher.Constraint("DistanceY", 0, 2, -1, 1, 32.4307))
pocket12 = body.newObject("PartDesign::Pocket", "Pocket011")
pocket12.Profile = sketch20
pocket12.setExpression("Length", "Params.pocket12_length")
pocket12.Reversed = True

# Sketch on XY plane
sketch21 = body.newObject("Sketcher::SketchObject", "Sketch020")
sketch21.AttachmentSupport = (doc.getObject("XY_Plane"), [""])
sketch21.MapMode = "FlatFace"
sketch21.AttachmentOffset = App.Placement(Vector(0, 0, -21.5), App.Rotation())
add_polygon(sketch21, [(0, 6.5), (0, 1.6), (-19, 1.6), (-19, 6.5)])  # lines 0-3
sketch21.addConstraint(Sketcher.Constraint("Vertical", 0))
sketch21.addConstraint(Sketcher.Constraint("Horizontal", 1))
sketch21.addConstraint(Sketcher.Constraint("Vertical", 2))
sketch21.addConstraint(Sketcher.Constraint("Horizontal", 3))
sketch21.addConstraint(Sketcher.Constraint("PointOnObject", 0, 2, -2))
sketch21.addConstraint(Sketcher.Constraint("DistanceX", 1, 2, 1, 1, 19.0))
sketch21.addConstraint(Sketcher.Constraint("DistanceY", 0, 2, 0, 1, 4.9))
sketch21.addConstraint(Sketcher.Constraint("DistanceY", -1, 1, 0, 2, 1.6))
sketch21.setExpression("Constraints[9]", "Params.sketch21_width")
sketch21.setExpression("Constraints[10]", "Params.sketch21_height")
pad9 = body.newObject("PartDesign::Pad", "Pad008")
pad9.Profile = sketch21
pad9.setExpression("Length", "Params.pad9_length")
pad9.Reversed = True

# Sketch on XZ plane
sketch22 = body.newObject("Sketcher::SketchObject", "Sketch021")
sketch22.AttachmentSupport = (doc.getObject("XZ_Plane"), [""])
sketch22.MapMode = "FlatFace"
sketch22.AttachmentOffset = App.Placement(Vector(0, 0, -1.6), App.Rotation())
add_polygon(sketch22, [(-19, -41.5), (-19, 0), (-21.5, 0), (-21.5, -41.5)])  # lines 0-3
add_polygon(sketch22, [(2.5, 0), (0, 0), (0, -41.5), (2.5, -41.5)])  # lines 4-7
sketch22.addConstraint(Sketcher.Constraint("Vertical", 0))
sketch22.addConstraint(Sketcher.Constraint("Horizontal", 1))
sketch22.addConstraint(Sketcher.Constraint("Vertical", 2))
sketch22.addConstraint(Sketcher.Constraint("Horizontal", 3))
sketch22.addConstraint(Sketcher.Constraint("Horizontal", 4))
sketch22.addConstraint(Sketcher.Constraint("Vertical", 5))
sketch22.addConstraint(Sketcher.Constraint("Horizontal", 6))
sketch22.addConstraint(Sketcher.Constraint("Vertical", 7))
sketch22.addConstraint(Sketcher.Constraint("Coincident", 4, 2, -1, 1))
sketch22.addConstraint(Sketcher.Constraint("PointOnObject", 0, 2, -1))
sketch22.addConstraint(Sketcher.Constraint("Horizontal", 3, 2, 5, 2))
sketch22.addConstraint(Sketcher.Constraint("Equal", 3, 4))
sketch22.addConstraint(Sketcher.Constraint("DistanceX", 1, 2, 1, 1, 2.5))
sketch22.addConstraint(Sketcher.Constraint("DistanceY", 0, 1, 0, 2, 41.5))
sketch22.addConstraint(Sketcher.Constraint("DistanceX", 0, 2, -1, 1, 19.0))
sketch22.setExpression("Constraints[20]", "Params.sketch22_width")
sketch22.setExpression("Constraints[21]", "Params.sketch22_height")
pad10 = body.newObject("PartDesign::Pad", "Pad009")
pad10.Profile = sketch22
pad10.setExpression("Length", "Params.pad10_length")
pad10.Reversed = True

# Sketch on XZ plane
sketch23 = body.newObject("Sketcher::SketchObject", "Sketch022")
sketch23.AttachmentSupport = (doc.getObject("XZ_Plane"), [""])
sketch23.MapMode = "FlatFace"
sketch23.AttachmentOffset = App.Placement(Vector(0, 0, -1.6), App.Rotation())
add_polygon(sketch23, [(2.5, 0), (0, 0), (2.5, -14.2)])  # lines 0-2
add_polygon(sketch23, [(-21.5, -14.2), (-19, 0), (-21.5, 0)])  # lines 3-5
sketch23.addConstraint(Sketcher.Constraint("Horizontal", 0))
sketch23.addConstraint(Sketcher.Constraint("Vertical", 2))
sketch23.addConstraint(Sketcher.Constraint("Horizontal", 4))
sketch23.addConstraint(Sketcher.Constraint("Vertical", 5))
sketch23.addConstraint(Sketcher.Constraint("Coincident", 0, 2, -1, 1))
sketch23.addConstraint(Sketcher.Constraint("PointOnObject", 3, 2, -1))
sketch23.addConstraint(Sketcher.Constraint("Horizontal", 1, 2, 5, 2))
sketch23.addConstraint(Sketcher.Constraint("Equal", 0, 4))
sketch23.addConstraint(Sketcher.Constraint("DistanceY", 2, 1, 2, 2, 14.2))
sketch23.addConstraint(Sketcher.Constraint("DistanceX", 0, 2, 0, 1, 2.5))
sketch23.addConstraint(Sketcher.Constraint("DistanceX", 3, 2, -1, 1, 19.0))
sketch23.setExpression("Constraints[14]", "Params.sketch23_height")
sketch23.setExpression("Constraints[15]", "Params.sketch23_width")
pocket13 = body.newObject("PartDesign::Pocket", "Pocket012")
pocket13.Profile = sketch23
pocket13.setExpression("Length", "Params.pocket13_length")

# Sketch on XZ plane
sketch24 = body.newObject("Sketcher::SketchObject", "Sketch023")
sketch24.AttachmentSupport = (doc.getObject("XZ_Plane"), [""])
sketch24.MapMode = "FlatFace"
sketch24.AttachmentOffset = App.Placement(Vector(0, 0, -6.5), App.Rotation())
add_polygon(sketch24, [(-21.5, -14.2), (-19, 0), (-19, 17.6), (0, 17.6), (0, 0), (2.5, -14.2), (2.5, -41.5), (-21.5, -41.5)])  # lines 0-7
sketch24.addGeometry(Part.Circle(Vector(-14, 5, 0), Vector(0, 0, 1), 3), False)  # 8
sketch24.addGeometry(Part.Circle(Vector(-5, 5, 0), Vector(0, 0, 1), 3), False)  # 9
sketch24.addConstraint(Sketcher.Constraint("Vertical", 1))
sketch24.addConstraint(Sketcher.Constraint("Horizontal", 2))
sketch24.addConstraint(Sketcher.Constraint("Vertical", 3))
sketch24.addConstraint(Sketcher.Constraint("Vertical", 5))
sketch24.addConstraint(Sketcher.Constraint("Horizontal", 6))
sketch24.addConstraint(Sketcher.Constraint("Vertical", 7))
sketch24.addConstraint(Sketcher.Constraint("Coincident", 3, 2, -1, 1))
sketch24.addConstraint(Sketcher.Constraint("Equal", 8, 9))
sketch24.addConstraint(Sketcher.Constraint("PointOnObject", 0, 2, -1))
sketch24.addConstraint(Sketcher.Constraint("Horizontal", 8, 3, 9, 3))
sketch24.addConstraint(Sketcher.Constraint("Horizontal", 4, 2, 7, 2))
sketch24.addConstraint(Sketcher.Constraint("Equal", 0, 4))
sketch24.addConstraint(Sketcher.Constraint("Diameter", 8, 6.0))
sketch24.addConstraint(Sketcher.Constraint("DistanceX", 2, 1, 2, 2, 19.0))
sketch24.addConstraint(Sketcher.Constraint("DistanceX", 6, 2, 6, 1, 24.0))
sketch24.addConstraint(Sketcher.Constraint("DistanceY", 5, 2, 5, 1, 27.3))
sketch24.addConstraint(Sketcher.Constraint("DistanceX", 8, 3, -1, 1, 14.0))
sketch24.addConstraint(Sketcher.Constraint("DistanceY", -1, 1, 8, 3, 5.0))
sketch24.addConstraint(Sketcher.Constraint("DistanceX", 9, 3, -1, 1, 5.0))
sketch24.addConstraint(Sketcher.Constraint("DistanceY", 1, 1, 1, 2, 17.64))
sketch24.addConstraint(Sketcher.Constraint("DistanceY", 4, 2, -1, 1, 14.2))
sketch24.setExpression("Constraints[20]", "Params.sketch24_diameter")
sketch24.setExpression("Constraints[21]", "Params.sketch24_width")
sketch24.setExpression("Constraints[22]", "Params.sketch24_width2")
sketch24.setExpression("Constraints[23]", "Params.sketch24_height")
sketch24.setExpression("Constraints[27]", "Params.sketch24_height2")
pad11 = body.newObject("PartDesign::Pad", "Pad010")
pad11.Profile = sketch24
pad11.setExpression("Length", "Params.pad11_length")
pad11.Reversed = True

# Sketch on YZ plane
sketch25 = body.newObject("Sketcher::SketchObject", "Sketch024")
sketch25.AttachmentSupport = (doc.getObject("YZ_Plane"), [""])
sketch25.MapMode = "FlatFace"
sketch25.AttachmentOffset = App.Placement(Vector(0, 0, -19), App.Rotation())
add_polygon(sketch25, [(24, -3), (6, 18), (24, 21)])  # lines 0-2
sketch25.addConstraint(Sketcher.Constraint("Vertical", 2))
sketch25.addConstraint(Sketcher.Constraint("DistanceX", -1, 1, 0, 2, 6.5))
sketch25.addConstraint(Sketcher.Constraint("DistanceY", -1, 1, 0, 2, 17.64))
sketch25.addConstraint(Sketcher.Constraint("DistanceY", -1, 1, 1, 2, 20.57))
sketch25.addConstraint(Sketcher.Constraint("DistanceY", 2, 2, 2, 1, 23.7898))
sketch25.addConstraint(Sketcher.Constraint("Distance", 0, 27.1534))
pocket14 = body.newObject("PartDesign::Pocket", "Pocket013")
pocket14.Profile = sketch25
pocket14.setExpression("Length", "Params.pocket14_length")
pocket14.Midplane = True

# Sketch on YZ plane
sketch26 = body.newObject("Sketcher::SketchObject", "Sketch025")
sketch26.AttachmentSupport = (doc.getObject("YZ_Plane"), [""])
sketch26.MapMode = "FlatFace"
sketch26.AttachmentOffset = App.Placement(Vector(0, 0, -19), App.Rotation())
add_polygon(sketch26, [(7, -42), (18, 0), (18, -42)])  # lines 0-2
sketch26.addConstraint(Sketcher.Constraint("Vertical", 1))
sketch26.addConstraint(Sketcher.Constraint("Horizontal", 2))
sketch26.addConstraint(Sketcher.Constraint("PointOnObject", 0, 2, -1))
sketch26.addConstraint(Sketcher.Constraint("Angle", 0, Q("74 deg")))
sketch26.addConstraint(Sketcher.Constraint("DistanceX", 2, 2, 2, 1, 11.9))
sketch26.addConstraint(Sketcher.Constraint("DistanceX", -1, 1, 0, 2, 18.5))
sketch26.setExpression("Constraints[7]", "Params.sketch26_width")
pocket15 = body.newObject("PartDesign::Pocket", "Pocket014")
pocket15.Profile = sketch26
pocket15.setExpression("Length", "Params.pocket15_length")
pocket15.Midplane = True

doc.recompute()
